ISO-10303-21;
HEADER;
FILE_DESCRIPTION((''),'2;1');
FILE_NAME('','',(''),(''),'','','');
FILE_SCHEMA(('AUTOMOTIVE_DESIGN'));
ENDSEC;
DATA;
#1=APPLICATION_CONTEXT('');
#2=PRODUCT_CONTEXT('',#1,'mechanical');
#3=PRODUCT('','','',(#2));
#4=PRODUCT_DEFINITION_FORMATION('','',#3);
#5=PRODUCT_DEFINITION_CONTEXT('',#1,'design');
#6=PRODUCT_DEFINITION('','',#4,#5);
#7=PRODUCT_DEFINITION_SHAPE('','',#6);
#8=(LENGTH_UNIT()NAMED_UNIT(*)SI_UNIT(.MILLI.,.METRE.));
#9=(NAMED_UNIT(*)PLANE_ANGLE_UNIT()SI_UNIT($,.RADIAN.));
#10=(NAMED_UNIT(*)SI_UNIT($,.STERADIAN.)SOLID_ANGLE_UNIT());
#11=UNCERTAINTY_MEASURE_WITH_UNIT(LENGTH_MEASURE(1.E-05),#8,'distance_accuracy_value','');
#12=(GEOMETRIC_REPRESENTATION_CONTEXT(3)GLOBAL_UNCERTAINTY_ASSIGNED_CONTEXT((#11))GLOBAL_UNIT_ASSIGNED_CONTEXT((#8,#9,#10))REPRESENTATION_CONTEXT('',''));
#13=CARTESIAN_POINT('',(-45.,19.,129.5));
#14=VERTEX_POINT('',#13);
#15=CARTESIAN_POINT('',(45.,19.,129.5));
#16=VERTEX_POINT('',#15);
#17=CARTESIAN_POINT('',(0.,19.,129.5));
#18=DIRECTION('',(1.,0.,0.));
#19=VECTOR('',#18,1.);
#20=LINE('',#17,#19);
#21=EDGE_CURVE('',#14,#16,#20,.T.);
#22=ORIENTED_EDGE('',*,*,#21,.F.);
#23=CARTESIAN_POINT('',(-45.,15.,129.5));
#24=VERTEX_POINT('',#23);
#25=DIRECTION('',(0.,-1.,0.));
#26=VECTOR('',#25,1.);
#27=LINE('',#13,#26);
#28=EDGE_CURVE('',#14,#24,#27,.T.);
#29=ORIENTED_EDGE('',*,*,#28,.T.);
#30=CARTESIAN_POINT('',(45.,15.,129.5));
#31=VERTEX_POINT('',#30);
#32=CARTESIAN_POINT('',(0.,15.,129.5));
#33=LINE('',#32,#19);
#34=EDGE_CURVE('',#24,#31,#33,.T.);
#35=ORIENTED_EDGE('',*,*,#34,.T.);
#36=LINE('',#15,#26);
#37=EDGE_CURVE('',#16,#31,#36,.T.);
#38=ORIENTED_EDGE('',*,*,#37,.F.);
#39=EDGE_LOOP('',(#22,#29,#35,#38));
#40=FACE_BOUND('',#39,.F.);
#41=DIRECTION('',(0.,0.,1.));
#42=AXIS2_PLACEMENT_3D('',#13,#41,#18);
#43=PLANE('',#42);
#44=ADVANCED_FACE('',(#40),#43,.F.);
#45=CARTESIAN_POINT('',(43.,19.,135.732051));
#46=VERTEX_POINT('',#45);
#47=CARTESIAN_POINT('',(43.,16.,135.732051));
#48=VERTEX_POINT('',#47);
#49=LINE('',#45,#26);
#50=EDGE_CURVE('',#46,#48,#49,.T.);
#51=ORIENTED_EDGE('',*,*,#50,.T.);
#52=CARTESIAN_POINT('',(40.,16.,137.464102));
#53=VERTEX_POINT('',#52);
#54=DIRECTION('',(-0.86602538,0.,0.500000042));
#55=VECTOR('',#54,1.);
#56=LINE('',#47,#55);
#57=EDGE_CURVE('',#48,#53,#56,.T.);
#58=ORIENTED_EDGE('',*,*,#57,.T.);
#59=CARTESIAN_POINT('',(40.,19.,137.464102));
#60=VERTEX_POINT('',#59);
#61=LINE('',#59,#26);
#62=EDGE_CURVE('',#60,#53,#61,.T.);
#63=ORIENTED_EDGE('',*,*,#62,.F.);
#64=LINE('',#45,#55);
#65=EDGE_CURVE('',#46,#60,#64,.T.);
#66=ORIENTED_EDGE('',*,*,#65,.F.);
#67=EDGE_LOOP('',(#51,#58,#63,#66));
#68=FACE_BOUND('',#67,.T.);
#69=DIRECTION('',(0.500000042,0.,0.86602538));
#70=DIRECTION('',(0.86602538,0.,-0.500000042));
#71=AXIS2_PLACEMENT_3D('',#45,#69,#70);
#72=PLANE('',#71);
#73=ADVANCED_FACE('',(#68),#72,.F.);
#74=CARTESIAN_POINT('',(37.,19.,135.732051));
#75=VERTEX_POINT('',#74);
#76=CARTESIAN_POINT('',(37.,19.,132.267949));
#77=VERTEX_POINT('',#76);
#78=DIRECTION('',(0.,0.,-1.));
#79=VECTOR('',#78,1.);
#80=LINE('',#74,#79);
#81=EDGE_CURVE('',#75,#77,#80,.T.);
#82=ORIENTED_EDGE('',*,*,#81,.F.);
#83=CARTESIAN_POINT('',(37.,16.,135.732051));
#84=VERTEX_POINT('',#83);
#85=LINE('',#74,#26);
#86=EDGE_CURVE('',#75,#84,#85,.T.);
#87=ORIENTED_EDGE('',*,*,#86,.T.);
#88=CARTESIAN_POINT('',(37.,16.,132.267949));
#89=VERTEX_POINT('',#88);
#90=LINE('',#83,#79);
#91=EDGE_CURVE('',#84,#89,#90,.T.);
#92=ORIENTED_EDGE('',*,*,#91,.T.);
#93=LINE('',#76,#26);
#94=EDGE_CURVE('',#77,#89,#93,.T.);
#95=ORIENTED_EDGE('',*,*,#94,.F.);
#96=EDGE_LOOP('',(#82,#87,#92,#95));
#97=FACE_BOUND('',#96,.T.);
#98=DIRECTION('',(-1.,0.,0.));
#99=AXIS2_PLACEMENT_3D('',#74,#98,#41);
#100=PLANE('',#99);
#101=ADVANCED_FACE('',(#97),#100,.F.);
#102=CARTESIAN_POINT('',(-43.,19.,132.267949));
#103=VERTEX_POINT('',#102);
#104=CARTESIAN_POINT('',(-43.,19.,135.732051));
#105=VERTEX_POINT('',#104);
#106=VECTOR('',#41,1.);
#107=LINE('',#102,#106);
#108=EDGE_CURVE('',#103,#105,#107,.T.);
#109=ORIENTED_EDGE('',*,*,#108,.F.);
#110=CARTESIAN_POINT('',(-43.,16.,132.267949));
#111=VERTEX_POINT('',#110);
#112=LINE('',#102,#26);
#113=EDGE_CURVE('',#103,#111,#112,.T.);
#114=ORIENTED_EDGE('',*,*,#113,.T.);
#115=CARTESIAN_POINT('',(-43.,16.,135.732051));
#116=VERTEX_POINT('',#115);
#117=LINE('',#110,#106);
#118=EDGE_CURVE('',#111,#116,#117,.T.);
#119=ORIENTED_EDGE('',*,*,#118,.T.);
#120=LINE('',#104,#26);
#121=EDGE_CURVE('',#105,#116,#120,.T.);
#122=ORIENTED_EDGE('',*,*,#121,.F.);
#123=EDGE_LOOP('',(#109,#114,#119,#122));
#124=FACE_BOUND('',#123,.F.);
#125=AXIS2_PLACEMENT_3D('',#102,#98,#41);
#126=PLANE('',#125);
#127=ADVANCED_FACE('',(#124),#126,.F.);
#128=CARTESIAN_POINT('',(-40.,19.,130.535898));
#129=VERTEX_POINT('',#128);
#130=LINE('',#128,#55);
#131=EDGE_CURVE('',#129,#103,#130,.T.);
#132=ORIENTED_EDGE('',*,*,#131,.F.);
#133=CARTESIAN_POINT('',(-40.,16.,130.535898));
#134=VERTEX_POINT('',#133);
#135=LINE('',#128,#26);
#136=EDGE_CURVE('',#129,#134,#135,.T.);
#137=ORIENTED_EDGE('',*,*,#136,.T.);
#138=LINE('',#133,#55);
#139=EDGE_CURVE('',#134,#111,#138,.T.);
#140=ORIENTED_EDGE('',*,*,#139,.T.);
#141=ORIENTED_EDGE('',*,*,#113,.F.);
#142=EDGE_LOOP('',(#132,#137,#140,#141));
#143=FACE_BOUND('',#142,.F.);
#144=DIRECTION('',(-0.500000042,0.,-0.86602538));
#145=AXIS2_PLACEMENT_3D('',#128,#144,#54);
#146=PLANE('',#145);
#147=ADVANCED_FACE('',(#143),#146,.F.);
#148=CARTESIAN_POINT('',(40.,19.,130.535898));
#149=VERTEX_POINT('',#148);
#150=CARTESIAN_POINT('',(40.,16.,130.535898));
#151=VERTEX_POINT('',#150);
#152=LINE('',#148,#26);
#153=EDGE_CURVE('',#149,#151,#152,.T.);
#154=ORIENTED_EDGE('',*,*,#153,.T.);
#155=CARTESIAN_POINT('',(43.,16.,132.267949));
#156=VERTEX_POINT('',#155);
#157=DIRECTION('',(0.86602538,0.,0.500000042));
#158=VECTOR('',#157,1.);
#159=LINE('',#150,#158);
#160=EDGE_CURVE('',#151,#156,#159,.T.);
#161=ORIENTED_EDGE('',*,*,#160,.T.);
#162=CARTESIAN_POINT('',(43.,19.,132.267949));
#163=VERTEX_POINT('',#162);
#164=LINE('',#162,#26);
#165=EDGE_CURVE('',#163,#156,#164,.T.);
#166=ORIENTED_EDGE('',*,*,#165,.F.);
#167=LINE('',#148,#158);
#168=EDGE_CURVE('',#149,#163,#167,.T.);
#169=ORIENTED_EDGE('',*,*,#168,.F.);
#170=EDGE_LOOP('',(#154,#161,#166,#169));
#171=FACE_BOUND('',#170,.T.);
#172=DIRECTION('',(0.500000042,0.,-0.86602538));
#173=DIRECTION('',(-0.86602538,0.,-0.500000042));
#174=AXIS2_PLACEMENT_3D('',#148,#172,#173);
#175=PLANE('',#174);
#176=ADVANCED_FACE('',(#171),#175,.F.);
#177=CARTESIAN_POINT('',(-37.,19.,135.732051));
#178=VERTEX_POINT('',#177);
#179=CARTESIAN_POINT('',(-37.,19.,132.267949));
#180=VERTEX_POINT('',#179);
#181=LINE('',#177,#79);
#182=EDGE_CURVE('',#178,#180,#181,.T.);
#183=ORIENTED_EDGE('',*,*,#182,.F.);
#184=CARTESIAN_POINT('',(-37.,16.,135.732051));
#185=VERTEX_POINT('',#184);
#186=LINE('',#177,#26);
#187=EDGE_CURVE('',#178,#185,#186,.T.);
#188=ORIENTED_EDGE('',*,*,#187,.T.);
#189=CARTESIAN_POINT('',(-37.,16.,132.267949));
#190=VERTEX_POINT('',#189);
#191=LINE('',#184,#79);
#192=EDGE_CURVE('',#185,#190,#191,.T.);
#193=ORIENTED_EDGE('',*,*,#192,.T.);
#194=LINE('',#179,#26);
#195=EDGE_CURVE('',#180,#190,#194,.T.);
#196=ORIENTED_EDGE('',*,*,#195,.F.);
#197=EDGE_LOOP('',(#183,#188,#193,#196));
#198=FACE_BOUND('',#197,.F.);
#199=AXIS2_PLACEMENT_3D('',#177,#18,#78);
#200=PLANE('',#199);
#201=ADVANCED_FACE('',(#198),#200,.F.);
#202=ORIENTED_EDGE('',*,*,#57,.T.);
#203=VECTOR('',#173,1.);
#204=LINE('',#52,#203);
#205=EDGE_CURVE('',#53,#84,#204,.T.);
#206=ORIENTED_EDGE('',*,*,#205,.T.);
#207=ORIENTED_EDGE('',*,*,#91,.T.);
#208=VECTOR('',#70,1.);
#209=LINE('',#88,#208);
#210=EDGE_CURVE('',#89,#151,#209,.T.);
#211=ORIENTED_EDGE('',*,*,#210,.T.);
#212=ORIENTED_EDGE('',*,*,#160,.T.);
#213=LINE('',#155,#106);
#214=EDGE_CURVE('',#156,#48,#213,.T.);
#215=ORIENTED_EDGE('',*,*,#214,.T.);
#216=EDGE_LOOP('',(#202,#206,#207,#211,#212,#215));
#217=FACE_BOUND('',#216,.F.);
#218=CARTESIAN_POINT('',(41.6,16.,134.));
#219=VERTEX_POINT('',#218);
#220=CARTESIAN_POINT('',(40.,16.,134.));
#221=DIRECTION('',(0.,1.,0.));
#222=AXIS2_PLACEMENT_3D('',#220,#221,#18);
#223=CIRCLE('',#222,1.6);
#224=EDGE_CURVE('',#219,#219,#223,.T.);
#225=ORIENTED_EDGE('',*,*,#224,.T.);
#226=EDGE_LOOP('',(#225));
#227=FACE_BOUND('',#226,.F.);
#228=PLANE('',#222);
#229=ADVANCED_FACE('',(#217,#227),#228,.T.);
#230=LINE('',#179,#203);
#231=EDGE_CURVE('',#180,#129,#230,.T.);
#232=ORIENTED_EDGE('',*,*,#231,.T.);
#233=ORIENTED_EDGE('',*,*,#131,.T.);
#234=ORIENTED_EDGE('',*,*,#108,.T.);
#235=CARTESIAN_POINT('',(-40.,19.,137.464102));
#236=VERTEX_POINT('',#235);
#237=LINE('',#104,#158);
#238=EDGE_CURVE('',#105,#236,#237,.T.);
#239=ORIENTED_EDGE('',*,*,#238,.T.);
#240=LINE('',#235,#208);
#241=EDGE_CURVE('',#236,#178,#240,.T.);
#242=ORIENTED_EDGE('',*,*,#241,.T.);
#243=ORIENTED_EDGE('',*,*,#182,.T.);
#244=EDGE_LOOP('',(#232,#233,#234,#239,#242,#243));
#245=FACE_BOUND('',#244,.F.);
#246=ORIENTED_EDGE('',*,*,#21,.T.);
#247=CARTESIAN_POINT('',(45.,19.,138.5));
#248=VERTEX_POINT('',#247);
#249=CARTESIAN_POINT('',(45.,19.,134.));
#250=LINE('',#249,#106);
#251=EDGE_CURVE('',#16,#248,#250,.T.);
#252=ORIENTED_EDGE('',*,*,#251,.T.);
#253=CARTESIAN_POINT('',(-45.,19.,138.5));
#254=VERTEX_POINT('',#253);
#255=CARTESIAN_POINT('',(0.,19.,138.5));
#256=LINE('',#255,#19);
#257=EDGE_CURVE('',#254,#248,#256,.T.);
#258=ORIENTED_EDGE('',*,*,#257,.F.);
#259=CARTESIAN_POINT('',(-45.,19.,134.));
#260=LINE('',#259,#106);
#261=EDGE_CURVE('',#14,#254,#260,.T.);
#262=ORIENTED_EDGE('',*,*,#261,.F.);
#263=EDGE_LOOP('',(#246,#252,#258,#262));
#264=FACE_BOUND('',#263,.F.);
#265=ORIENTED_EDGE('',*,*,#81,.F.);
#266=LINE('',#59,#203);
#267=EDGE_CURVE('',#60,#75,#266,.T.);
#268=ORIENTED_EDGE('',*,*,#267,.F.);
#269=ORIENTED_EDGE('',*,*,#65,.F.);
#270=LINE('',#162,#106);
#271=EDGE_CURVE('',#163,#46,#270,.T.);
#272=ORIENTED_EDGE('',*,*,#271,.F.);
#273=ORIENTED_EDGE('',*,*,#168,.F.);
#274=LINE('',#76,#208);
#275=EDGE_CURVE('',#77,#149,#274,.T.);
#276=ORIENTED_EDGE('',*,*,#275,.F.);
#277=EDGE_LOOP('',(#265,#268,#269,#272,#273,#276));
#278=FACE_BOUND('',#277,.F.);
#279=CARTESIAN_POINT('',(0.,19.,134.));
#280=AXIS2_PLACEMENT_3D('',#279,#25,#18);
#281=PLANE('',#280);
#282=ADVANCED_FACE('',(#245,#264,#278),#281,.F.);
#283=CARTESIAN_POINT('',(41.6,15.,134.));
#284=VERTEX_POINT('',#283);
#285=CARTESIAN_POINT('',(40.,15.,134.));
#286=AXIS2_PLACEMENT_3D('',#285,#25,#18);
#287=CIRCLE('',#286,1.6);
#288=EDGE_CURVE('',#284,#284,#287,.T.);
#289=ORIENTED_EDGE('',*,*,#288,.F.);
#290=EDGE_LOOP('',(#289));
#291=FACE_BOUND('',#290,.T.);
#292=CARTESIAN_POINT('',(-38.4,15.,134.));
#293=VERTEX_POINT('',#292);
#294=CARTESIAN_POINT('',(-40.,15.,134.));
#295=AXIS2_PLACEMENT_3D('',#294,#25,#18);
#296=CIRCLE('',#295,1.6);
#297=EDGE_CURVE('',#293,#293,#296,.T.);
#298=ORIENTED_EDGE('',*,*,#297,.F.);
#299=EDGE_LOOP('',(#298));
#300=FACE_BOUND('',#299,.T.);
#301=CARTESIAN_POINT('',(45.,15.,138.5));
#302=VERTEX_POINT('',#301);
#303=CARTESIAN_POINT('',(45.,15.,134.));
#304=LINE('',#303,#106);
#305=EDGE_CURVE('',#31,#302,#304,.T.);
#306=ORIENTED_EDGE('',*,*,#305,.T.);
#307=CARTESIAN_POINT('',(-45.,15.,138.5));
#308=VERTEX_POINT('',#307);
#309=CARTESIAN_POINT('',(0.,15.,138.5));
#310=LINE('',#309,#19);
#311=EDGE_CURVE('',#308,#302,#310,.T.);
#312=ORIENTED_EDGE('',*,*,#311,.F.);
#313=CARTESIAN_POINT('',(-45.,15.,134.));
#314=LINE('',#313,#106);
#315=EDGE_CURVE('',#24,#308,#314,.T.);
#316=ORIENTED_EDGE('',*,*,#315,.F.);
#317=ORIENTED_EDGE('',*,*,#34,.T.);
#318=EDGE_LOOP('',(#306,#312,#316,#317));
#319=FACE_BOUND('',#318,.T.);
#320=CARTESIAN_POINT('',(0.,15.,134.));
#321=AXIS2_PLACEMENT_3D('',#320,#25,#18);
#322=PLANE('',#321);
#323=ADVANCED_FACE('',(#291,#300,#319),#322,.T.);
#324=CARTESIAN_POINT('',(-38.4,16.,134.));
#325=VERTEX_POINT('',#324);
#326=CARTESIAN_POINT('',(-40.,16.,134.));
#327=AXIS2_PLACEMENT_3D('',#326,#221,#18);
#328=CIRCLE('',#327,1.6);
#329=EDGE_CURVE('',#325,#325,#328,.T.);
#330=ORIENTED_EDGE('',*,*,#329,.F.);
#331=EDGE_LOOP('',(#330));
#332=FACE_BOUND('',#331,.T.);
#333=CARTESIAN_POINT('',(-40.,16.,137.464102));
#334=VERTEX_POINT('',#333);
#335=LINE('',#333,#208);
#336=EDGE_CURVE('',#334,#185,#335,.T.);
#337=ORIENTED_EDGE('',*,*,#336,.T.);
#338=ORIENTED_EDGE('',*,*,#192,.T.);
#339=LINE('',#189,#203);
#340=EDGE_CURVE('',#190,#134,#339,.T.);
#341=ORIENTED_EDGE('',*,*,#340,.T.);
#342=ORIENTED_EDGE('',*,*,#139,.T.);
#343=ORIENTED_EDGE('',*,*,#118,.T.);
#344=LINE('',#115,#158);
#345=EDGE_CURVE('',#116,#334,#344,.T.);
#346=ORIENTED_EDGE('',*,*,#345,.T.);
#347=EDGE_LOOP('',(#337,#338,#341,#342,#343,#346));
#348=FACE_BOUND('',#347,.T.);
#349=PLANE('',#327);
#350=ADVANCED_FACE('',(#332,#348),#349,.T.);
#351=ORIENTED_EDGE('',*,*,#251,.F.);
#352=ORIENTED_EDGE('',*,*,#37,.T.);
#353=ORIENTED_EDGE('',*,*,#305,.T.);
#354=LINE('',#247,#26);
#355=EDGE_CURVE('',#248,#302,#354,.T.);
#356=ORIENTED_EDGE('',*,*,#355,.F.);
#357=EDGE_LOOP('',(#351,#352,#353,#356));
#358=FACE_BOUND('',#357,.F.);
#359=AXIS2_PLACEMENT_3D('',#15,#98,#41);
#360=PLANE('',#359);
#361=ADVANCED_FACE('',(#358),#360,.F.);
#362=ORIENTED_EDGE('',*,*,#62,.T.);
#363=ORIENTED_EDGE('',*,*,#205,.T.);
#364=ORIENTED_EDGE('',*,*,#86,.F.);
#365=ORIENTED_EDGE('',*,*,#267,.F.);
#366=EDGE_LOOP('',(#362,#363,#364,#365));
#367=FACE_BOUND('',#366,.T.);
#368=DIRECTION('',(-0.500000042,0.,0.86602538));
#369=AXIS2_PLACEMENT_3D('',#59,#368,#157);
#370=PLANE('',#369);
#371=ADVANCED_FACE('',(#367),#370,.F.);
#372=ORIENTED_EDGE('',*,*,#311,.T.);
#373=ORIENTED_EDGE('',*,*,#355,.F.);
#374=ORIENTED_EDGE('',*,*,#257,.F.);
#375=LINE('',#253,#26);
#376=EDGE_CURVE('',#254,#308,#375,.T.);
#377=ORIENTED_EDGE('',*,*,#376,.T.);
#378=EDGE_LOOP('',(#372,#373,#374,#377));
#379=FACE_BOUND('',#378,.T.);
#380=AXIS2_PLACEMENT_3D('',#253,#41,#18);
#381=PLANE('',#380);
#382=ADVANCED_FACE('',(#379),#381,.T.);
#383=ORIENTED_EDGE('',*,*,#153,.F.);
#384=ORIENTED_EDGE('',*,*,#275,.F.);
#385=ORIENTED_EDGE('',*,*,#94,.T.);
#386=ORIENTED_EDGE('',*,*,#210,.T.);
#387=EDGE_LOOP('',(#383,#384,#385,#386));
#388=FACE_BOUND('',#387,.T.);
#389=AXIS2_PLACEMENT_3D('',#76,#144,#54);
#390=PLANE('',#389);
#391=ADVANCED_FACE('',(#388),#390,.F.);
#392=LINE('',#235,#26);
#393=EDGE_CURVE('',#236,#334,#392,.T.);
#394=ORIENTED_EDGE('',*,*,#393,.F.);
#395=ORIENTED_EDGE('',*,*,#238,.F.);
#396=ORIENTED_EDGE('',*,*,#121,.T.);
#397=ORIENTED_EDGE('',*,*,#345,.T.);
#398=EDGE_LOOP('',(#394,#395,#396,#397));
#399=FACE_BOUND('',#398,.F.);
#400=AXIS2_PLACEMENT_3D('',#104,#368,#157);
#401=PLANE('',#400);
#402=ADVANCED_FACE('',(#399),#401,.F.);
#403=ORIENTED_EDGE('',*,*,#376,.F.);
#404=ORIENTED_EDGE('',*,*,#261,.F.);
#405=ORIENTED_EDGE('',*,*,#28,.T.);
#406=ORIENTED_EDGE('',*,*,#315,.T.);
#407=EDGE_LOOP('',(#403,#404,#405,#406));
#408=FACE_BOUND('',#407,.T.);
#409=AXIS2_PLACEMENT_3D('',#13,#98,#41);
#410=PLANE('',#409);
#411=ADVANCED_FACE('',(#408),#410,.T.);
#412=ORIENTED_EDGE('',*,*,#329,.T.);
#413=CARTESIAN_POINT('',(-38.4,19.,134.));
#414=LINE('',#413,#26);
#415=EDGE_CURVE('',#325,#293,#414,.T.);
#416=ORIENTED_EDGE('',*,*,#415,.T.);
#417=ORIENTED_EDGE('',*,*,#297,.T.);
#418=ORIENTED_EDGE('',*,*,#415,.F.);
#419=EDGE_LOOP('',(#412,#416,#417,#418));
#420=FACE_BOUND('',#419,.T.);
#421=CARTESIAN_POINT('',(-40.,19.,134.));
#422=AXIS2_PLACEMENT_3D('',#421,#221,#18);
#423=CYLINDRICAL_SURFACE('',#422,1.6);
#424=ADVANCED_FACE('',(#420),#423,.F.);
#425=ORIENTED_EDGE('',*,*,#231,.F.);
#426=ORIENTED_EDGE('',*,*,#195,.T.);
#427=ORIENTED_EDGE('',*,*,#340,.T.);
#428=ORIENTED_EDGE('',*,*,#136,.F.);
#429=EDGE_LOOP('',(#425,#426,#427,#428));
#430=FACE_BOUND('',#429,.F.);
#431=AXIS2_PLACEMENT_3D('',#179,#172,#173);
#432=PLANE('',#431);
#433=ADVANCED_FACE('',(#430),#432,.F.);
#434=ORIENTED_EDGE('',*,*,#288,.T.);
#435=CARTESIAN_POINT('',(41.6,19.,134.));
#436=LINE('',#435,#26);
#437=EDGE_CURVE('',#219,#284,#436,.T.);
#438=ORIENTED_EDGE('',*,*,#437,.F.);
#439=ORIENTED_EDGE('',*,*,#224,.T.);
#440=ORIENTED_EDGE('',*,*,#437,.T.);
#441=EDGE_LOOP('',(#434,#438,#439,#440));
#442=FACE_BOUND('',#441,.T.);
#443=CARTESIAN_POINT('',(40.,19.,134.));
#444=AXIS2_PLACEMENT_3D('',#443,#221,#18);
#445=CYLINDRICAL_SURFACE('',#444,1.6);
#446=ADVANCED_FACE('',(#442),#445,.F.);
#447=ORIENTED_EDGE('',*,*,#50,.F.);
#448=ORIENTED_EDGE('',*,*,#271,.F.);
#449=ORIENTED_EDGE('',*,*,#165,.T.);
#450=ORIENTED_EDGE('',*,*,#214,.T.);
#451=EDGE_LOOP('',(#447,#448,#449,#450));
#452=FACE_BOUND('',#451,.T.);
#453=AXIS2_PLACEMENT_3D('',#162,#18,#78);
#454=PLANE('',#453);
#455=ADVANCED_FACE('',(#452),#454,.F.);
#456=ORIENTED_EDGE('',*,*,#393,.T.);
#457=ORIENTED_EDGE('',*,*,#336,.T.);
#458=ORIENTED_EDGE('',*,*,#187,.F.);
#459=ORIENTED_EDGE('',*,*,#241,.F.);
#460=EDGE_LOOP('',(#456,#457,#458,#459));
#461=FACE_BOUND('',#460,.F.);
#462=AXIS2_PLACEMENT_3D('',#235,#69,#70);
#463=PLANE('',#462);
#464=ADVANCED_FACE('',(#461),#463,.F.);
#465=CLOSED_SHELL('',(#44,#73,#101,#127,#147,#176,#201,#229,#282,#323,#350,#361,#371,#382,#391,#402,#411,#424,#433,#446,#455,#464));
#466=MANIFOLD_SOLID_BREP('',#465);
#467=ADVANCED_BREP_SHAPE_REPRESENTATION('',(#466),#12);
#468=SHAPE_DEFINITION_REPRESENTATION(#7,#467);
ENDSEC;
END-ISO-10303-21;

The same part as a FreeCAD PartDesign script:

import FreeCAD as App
import Part
import Sketcher

V = App.Vector
Q = App.Units.Quantity

doc = App.newDocument("Part")
body = doc.addObject("PartDesign::Body", "Body")

sketch1 = body.newObject("Sketcher::SketchObject", "Sketch")
sketch1.AttachmentSupport = (doc.getObject("XZ_Plane"), [""])
sketch1.MapMode = "FlatFace"
sketch1.addGeometry([
    Part.LineSegment(V(-45, 38.5, 0), V(-45, 29.5, 0)),
    Part.LineSegment(V(-45, 29.5, 0), V(45, 29.5, 0)),
    Part.LineSegment(V(45, 29.5, 0), V(45, 38.5, 0)),
    Part.LineSegment(V(45, 38.5, 0), V(-45, 38.5, 0)),
    Part.Circle(V(-40, 34, 0), V(0, 0, 1), 1.6),
    Part.Circle(V(40, 34, 0), V(0, 0, 1), 1.6),
], False)
sketch1.addConstraint([
    Sketcher.Constraint("Coincident", 0, 2, 1, 1),
    Sketcher.Constraint("Coincident", 1, 2, 2, 1),
    Sketcher.Constraint("Coincident", 2, 2, 3, 1),
    Sketcher.Constraint("Coincident", 3, 2, 0, 1),
    Sketcher.Constraint("Vertical", 0),
    Sketcher.Constraint("Horizontal", 1),
    Sketcher.Constraint("Vertical", 2),
    Sketcher.Constraint("Horizontal", 3),
    Sketcher.Constraint("Equal", 4, 5),
    Sketcher.Constraint("Symmetric", 4, 3, 5, 3, -2),
    Sketcher.Constraint("Diameter", 4, 3.2),
    Sketcher.Constraint("DistanceX", 1, 1, 1, 2, 90.0),
    Sketcher.Constraint("DistanceY", 0, 2, 0, 1, 9.0),
    Sketcher.Constraint("DistanceX", 4, 3, -1, 1, 40.0),
    Sketcher.Constraint("DistanceY", -1, 1, 4, 3, 34.0),
    Sketcher.Constraint("DistanceX", 0, 2, -1, 1, 45.0),
    Sketcher.Constraint("DistanceY", -1, 1, 0, 2, 29.5),
])
pad1 = body.newObject("PartDesign::Pad", "Pad")
pad1.Profile = sketch1
pad1.Length = 4

sketch2 = body.newObject("Sketcher::SketchObject", "Sketch001")
sketch2.AttachmentSupport = (doc.getObject("XZ_Plane"), [""])
sketch2.MapMode = "FlatFace"
sketch2.addGeometry([
    Part.LineSegment(V(-37, 32.3, 0), V(-40, 30.5, 0)),
    Part.LineSegment(V(-40, 30.5, 0), V(-43, 32.3, 0)),
    Part.LineSegment(V(-43, 32.3, 0), V(-43, 35.7, 0)),
    Part.LineSegment(V(-43, 35.7, 0), V(-40, 37.5, 0)),
    Part.LineSegment(V(-40, 37.5, 0), V(-37, 35.7, 0)),
    Part.LineSegment(V(-37, 35.7, 0), V(-37, 32.3, 0)),
], False)
sketch2.addConstraint([
    Sketcher.Constraint("Coincident", 0, 2, 1, 1),
    Sketcher.Constraint("Coincident", 1, 2, 2, 1),
    Sketcher.Constraint("Coincident", 2, 2, 3, 1),
    Sketcher.Constraint("Coincident", 3, 2, 4, 1),
    Sketcher.Constraint("Coincident", 4, 2, 5, 1),
    Sketcher.Constraint("Coincident", 5, 2, 0, 1),
    Sketcher.Constraint("Vertical", 2),
    Sketcher.Constraint("Vertical", 5),
    Sketcher.Constraint("Parallel", 0, 3),
    Sketcher.Constraint("Parallel", 1, 4),
    Sketcher.Constraint("Horizontal", 2, 2, 4, 2),
    Sketcher.Constraint("Horizontal", 1, 2, 5, 2),
    Sketcher.Constraint("Vertical", 0, 2, 3, 2),
    Sketcher.Constraint("Angle", 0, Q("-149.999997 deg")),
    Sketcher.Constraint("DistanceX", 0, 2, -1, 1, 40.0),
    Sketcher.Constraint("DistanceX", 1, 2, -1, 1, 43.0),
    Sketcher.Constraint("DistanceY", 2, 1, 2, 2, 3.464102),
    Sketcher.Constraint("DistanceY", -1, 1, 3, 2, 37.464102),
])
pocket1 = body.newObject("PartDesign::Pocket", "Pocket")
pocket1.Profile = sketch2
pocket1.Length = 3
pocket1.Reversed = True
doc.recompute()

mirrored = body.newObject("PartDesign::Mirrored", "Mirrored")
mirrored.Originals = [pocket1]
mirrored.MirrorPlane = (doc.getObject("YZ_Plane"), [""])
body.Tip = mirrored
body2 = doc.addObject("PartDesign::Body", "Body001")
doc.recompute()

body.Placement = App.Placement(V(0, 19, 100), App.Rotation(V(0, 0, 1), 0))
boolean = body2.newObject("PartDesign::Boolean", "Boolean")
boolean.Type = "Fuse"
boolean.addObjects([body])

doc.recompute()
